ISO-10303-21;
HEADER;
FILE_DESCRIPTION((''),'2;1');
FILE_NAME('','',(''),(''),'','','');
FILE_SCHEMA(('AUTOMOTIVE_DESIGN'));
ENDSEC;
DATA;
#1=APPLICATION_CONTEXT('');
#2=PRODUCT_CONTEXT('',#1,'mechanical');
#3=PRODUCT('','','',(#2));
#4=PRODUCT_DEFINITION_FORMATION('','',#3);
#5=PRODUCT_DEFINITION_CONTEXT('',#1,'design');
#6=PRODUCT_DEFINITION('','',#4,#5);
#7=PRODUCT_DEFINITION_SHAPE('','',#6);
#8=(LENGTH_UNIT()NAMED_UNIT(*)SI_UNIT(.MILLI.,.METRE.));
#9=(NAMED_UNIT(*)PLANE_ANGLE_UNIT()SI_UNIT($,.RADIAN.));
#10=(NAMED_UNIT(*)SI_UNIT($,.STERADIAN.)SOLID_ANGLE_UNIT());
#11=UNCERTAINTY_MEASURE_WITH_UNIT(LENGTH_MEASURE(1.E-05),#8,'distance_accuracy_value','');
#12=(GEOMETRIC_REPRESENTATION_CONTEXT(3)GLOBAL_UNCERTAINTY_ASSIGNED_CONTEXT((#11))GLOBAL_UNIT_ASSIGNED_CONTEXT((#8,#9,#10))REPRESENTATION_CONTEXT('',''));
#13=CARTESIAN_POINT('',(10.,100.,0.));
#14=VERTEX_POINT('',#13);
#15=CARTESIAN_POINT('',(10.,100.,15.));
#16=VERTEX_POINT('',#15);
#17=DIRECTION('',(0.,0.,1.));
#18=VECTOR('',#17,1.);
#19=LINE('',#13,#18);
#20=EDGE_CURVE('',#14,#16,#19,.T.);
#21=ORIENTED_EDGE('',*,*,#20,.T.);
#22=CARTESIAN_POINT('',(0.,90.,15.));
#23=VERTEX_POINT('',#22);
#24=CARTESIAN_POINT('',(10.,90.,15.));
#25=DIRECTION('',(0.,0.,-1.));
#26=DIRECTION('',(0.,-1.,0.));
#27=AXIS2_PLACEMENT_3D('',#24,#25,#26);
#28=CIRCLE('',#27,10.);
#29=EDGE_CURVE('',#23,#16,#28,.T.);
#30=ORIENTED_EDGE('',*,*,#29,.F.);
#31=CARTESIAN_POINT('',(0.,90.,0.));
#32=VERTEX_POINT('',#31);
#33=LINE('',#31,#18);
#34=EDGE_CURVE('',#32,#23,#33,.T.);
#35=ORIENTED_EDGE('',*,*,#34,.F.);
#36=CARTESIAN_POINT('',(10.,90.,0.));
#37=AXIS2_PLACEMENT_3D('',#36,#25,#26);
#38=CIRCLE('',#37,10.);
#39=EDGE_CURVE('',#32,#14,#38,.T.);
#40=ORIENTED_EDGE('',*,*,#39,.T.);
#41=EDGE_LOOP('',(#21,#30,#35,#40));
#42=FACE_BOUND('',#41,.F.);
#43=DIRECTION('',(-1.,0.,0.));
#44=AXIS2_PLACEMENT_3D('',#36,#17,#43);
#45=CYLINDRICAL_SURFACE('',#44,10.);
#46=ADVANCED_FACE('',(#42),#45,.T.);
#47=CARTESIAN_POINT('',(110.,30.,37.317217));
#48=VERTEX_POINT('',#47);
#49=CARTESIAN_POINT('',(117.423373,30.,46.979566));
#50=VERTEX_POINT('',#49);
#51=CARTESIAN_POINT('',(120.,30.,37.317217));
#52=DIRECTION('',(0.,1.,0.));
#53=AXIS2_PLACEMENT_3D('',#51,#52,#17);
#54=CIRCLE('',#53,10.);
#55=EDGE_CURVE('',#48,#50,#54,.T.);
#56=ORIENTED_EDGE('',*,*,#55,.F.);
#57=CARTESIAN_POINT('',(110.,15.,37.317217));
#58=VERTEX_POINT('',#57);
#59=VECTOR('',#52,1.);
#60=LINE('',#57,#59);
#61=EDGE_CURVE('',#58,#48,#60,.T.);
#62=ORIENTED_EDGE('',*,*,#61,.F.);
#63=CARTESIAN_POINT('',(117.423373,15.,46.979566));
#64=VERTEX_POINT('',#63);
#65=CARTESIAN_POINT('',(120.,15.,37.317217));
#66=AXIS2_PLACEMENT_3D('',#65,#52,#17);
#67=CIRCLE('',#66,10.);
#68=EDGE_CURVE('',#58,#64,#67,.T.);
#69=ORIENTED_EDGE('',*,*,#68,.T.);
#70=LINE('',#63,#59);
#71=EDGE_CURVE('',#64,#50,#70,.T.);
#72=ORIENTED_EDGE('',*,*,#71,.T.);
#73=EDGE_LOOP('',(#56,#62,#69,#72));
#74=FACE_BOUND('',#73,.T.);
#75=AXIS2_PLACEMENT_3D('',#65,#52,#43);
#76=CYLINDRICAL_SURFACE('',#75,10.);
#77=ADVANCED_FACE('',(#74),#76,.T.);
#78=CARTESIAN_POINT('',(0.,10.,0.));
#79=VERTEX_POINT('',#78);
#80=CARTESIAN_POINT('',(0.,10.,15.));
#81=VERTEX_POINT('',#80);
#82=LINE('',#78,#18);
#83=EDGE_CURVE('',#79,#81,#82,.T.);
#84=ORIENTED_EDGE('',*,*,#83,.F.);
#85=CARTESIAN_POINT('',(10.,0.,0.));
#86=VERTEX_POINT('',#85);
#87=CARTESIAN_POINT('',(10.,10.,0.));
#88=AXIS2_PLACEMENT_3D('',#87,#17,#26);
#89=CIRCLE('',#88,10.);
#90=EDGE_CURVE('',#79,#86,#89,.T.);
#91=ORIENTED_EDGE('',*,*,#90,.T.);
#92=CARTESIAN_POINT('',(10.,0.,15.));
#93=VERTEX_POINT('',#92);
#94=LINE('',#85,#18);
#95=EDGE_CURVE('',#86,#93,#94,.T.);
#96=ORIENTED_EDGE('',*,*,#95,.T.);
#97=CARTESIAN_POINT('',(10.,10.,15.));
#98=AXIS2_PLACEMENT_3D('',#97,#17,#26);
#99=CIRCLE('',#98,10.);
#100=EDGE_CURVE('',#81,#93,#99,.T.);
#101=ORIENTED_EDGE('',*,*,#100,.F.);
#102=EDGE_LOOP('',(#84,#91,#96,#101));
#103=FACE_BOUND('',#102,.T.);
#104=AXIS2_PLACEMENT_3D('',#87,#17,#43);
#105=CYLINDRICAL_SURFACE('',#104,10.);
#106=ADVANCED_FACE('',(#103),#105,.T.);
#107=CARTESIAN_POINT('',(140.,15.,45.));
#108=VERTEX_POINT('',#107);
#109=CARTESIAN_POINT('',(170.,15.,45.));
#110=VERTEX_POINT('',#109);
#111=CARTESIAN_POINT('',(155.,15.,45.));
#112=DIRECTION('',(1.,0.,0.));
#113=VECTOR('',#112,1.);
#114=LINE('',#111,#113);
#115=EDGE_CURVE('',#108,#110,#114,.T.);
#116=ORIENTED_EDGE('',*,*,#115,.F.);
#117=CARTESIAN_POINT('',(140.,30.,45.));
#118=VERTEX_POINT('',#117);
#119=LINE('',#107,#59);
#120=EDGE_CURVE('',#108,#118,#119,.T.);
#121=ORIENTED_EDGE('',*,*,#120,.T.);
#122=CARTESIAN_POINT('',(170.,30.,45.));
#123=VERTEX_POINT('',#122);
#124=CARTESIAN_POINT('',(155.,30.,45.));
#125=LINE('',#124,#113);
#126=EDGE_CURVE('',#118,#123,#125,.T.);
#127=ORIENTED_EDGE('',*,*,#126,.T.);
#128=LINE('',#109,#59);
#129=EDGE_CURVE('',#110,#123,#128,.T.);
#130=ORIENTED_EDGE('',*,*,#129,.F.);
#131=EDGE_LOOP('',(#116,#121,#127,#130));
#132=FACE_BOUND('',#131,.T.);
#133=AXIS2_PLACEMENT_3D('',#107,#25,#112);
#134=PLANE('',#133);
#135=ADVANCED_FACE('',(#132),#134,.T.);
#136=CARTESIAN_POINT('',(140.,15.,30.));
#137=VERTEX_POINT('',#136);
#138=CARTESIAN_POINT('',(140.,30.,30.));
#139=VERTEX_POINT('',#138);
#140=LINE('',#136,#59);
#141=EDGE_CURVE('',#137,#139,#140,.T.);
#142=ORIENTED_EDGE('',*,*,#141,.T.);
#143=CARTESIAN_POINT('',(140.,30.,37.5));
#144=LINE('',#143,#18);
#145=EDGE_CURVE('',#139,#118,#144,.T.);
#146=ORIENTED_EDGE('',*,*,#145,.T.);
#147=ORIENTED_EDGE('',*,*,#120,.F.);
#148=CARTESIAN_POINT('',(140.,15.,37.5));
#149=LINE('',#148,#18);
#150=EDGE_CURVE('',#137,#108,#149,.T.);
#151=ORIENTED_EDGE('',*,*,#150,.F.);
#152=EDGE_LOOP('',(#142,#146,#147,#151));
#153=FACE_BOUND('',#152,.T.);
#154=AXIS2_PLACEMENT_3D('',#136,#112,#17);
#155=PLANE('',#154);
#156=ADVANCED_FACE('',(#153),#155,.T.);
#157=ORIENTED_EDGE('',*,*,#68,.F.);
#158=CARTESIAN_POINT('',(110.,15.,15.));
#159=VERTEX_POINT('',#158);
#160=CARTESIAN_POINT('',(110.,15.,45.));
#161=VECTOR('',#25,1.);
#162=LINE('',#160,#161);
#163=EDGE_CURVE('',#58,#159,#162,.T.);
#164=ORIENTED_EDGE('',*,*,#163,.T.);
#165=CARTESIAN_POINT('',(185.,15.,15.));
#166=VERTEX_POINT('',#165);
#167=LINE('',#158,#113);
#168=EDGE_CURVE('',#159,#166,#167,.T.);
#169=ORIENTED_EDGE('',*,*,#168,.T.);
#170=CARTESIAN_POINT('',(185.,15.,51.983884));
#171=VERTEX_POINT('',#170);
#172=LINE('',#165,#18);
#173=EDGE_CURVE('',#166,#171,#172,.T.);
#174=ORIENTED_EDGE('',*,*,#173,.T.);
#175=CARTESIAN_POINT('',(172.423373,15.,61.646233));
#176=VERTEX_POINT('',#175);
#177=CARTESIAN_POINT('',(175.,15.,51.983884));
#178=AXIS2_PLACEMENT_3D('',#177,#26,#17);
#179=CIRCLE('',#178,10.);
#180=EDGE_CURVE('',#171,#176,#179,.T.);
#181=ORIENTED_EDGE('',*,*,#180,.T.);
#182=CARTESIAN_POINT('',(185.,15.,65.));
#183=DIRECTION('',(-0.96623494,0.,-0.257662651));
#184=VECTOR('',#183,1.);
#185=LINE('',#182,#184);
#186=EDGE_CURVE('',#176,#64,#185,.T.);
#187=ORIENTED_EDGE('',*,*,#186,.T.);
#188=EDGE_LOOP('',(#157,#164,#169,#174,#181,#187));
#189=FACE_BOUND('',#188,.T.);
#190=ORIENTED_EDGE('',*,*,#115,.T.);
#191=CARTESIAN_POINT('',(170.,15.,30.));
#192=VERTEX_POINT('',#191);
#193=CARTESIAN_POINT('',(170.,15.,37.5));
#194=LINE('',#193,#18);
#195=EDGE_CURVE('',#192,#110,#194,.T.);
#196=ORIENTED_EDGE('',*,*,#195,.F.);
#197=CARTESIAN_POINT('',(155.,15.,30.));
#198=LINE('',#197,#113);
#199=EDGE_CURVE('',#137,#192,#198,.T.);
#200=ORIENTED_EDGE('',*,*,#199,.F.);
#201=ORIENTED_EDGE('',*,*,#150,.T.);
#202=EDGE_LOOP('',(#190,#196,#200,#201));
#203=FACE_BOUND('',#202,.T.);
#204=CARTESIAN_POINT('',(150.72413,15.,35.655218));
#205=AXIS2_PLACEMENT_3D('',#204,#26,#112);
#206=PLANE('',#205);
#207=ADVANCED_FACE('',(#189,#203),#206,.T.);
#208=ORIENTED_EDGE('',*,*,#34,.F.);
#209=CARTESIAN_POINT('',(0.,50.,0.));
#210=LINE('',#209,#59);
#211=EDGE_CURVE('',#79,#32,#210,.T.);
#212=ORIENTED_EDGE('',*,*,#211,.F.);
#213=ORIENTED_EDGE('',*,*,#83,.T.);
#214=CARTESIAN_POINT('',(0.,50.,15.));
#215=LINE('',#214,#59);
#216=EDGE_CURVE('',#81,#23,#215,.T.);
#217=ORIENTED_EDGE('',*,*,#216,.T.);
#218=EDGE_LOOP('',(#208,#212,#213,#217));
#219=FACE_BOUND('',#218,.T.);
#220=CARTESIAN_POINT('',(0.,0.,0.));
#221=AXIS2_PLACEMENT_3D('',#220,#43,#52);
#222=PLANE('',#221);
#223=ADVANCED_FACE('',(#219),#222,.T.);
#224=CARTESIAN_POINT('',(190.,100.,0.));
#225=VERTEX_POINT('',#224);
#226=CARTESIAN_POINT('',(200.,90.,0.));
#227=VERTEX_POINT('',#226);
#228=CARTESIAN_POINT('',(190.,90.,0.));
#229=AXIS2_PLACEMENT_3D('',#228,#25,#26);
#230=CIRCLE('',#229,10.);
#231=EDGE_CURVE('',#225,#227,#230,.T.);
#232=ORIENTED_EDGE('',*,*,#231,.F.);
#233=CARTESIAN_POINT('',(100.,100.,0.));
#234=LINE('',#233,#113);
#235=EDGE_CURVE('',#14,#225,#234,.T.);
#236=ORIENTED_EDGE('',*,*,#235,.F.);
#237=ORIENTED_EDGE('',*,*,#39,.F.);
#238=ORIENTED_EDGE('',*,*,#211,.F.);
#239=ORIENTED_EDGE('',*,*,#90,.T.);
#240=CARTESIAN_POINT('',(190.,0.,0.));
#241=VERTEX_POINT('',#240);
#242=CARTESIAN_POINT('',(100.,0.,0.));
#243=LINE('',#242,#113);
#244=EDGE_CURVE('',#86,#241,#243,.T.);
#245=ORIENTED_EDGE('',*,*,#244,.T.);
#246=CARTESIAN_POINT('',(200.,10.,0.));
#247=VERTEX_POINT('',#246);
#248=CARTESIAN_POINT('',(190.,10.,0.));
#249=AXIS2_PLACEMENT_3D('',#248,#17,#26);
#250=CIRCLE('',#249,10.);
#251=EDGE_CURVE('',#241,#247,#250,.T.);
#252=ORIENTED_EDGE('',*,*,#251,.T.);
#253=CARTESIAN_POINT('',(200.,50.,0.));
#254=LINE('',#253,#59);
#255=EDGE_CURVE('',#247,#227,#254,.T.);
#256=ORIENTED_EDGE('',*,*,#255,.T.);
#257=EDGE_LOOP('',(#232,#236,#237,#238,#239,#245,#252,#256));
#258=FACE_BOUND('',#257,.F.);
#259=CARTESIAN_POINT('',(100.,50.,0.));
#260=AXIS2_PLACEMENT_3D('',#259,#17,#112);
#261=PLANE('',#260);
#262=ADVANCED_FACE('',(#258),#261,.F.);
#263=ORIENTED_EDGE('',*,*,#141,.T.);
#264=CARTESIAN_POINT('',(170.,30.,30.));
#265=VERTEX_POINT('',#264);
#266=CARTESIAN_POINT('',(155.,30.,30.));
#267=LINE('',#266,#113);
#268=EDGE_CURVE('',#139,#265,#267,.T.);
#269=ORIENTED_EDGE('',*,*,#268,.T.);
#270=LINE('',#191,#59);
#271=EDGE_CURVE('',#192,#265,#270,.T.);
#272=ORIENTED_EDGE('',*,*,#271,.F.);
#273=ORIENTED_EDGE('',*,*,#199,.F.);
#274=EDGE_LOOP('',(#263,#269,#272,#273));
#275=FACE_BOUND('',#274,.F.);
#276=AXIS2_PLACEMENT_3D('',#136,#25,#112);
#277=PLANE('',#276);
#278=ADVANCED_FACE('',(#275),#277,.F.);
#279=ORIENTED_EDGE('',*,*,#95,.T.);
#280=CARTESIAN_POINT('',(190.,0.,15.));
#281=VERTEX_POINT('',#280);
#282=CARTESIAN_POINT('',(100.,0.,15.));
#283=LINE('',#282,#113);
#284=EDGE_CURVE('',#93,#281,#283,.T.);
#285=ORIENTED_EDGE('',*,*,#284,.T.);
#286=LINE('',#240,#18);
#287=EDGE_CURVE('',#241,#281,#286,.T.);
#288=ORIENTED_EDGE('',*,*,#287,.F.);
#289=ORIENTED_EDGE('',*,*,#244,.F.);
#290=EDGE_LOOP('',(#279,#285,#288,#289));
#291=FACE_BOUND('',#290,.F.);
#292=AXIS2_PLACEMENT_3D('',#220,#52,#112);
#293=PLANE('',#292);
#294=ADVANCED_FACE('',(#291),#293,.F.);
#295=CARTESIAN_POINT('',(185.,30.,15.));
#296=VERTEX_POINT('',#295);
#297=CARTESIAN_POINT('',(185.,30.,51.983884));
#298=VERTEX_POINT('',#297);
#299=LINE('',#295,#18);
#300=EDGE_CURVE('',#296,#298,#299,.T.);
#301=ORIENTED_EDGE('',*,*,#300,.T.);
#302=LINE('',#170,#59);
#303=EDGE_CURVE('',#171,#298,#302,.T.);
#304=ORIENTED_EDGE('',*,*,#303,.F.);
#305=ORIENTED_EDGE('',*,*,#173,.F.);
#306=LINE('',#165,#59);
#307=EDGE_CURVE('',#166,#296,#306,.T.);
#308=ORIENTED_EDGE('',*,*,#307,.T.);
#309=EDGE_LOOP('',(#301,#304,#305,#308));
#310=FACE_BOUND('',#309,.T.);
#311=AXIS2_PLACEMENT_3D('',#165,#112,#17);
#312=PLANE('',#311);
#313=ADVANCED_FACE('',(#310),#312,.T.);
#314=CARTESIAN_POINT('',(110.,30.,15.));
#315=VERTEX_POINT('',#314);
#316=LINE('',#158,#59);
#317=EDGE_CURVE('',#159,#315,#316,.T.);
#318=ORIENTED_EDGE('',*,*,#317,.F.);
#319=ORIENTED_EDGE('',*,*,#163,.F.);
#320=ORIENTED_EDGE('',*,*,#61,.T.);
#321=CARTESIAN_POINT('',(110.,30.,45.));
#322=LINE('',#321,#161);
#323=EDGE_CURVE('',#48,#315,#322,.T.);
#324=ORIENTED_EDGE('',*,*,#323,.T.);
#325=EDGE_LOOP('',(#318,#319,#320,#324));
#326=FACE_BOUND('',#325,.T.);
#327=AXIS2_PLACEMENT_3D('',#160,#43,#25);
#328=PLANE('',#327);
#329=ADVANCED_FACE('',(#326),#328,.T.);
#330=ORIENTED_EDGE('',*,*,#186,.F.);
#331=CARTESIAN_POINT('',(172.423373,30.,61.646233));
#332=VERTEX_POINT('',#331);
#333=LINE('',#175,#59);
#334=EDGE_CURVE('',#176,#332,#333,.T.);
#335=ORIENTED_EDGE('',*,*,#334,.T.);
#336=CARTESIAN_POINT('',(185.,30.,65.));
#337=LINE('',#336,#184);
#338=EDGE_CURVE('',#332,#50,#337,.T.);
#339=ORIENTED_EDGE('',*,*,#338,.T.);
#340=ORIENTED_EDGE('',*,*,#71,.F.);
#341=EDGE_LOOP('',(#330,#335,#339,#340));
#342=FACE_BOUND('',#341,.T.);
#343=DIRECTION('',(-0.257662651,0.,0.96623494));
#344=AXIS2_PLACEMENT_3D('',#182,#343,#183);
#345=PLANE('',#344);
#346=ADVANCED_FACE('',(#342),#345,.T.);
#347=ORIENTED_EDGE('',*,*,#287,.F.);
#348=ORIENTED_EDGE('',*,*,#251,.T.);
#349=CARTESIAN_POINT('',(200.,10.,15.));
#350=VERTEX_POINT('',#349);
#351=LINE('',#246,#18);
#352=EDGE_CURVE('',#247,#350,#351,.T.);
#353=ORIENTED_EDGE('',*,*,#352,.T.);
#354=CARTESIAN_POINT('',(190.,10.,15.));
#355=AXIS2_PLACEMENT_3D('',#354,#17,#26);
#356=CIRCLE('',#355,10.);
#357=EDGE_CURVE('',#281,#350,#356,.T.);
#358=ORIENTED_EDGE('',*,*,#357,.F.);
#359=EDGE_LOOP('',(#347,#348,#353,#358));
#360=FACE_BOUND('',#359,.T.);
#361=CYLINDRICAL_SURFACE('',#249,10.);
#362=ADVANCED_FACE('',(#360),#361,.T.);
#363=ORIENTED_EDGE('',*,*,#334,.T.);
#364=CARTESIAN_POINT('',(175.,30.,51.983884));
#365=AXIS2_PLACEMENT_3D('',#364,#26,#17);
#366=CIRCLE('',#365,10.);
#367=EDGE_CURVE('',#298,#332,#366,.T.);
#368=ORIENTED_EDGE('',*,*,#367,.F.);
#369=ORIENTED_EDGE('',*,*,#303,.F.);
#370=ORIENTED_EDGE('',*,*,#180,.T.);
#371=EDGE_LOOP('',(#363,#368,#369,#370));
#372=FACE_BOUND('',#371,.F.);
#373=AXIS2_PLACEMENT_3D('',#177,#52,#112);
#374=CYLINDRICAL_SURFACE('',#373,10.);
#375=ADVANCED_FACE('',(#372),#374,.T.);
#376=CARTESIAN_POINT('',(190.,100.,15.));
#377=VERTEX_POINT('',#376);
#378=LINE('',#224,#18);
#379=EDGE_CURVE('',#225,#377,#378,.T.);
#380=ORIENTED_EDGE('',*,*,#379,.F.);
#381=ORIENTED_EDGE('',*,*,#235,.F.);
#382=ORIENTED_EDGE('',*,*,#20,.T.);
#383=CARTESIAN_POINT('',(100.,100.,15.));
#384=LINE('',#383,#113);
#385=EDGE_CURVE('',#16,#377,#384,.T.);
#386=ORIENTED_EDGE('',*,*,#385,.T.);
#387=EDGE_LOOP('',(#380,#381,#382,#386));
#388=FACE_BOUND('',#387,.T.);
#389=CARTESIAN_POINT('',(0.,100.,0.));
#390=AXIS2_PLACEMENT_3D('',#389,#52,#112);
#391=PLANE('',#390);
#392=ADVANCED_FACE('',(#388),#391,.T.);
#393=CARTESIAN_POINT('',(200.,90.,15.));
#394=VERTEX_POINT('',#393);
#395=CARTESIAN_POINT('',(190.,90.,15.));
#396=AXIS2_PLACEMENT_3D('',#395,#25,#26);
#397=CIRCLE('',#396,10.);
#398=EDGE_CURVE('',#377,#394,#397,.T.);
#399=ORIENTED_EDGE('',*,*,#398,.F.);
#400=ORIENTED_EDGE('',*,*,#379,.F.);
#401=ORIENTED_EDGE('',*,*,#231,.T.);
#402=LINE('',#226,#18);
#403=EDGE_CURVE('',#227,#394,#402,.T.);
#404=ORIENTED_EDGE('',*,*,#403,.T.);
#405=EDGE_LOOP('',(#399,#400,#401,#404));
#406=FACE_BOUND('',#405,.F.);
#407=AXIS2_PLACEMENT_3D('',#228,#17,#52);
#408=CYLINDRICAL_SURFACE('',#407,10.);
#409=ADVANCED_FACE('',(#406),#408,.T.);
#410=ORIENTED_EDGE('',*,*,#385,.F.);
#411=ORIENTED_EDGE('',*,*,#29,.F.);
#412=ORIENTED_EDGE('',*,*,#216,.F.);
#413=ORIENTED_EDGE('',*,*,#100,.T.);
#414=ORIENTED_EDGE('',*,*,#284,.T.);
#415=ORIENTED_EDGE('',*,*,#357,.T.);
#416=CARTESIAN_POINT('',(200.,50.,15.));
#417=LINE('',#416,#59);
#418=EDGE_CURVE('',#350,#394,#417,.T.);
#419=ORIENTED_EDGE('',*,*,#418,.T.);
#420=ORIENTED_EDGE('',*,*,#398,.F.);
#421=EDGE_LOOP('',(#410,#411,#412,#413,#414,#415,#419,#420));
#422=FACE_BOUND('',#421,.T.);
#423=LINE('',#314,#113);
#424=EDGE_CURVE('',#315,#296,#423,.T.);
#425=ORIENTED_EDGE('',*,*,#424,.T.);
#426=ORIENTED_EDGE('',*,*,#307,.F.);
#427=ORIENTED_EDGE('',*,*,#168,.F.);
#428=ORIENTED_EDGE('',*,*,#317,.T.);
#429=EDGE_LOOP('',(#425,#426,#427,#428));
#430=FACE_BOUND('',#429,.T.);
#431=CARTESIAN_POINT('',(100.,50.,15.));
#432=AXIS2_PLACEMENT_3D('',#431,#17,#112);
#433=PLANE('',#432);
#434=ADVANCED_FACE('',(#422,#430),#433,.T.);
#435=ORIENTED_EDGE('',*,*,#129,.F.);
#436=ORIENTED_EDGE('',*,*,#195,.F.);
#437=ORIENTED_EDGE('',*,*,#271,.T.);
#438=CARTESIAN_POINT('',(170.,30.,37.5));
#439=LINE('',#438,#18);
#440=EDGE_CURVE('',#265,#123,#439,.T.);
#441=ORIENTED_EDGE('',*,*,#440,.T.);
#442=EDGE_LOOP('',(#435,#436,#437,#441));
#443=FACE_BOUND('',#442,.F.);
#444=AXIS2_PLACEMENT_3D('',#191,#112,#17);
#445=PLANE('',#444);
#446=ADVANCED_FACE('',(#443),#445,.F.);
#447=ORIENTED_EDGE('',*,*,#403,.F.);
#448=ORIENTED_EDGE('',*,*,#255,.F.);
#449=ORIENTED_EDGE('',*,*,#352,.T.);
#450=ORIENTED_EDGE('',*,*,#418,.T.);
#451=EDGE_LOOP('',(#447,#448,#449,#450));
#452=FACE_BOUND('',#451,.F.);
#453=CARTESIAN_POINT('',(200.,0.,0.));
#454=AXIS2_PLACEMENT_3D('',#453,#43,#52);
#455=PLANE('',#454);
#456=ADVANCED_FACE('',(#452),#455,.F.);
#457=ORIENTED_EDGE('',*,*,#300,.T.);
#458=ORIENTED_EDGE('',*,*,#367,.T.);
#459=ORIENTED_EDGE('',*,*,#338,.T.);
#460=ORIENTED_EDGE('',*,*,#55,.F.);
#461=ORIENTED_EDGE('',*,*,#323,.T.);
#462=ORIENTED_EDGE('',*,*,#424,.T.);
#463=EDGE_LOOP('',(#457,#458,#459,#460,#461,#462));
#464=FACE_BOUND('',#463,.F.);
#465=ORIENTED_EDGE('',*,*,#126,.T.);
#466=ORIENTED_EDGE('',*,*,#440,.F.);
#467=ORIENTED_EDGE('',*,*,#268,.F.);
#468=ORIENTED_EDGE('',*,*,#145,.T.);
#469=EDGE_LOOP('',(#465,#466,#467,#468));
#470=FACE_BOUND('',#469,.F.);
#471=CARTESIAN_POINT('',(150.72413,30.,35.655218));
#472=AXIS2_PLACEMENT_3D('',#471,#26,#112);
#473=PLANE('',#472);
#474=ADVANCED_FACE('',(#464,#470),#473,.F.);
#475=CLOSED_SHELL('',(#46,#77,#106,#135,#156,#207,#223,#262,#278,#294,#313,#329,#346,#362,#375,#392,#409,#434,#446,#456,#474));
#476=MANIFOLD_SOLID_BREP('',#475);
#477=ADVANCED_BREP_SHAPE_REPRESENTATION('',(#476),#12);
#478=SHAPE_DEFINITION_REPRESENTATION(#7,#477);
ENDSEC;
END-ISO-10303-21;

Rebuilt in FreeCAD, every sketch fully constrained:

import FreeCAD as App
import Part
import Sketcher

V = App.Vector


def edges_at(feature, points):
    """Names of the edges that pass closest to the given points."""
    edges = feature.Shape.Edges
    near = lambda p: min(range(len(edges)), key=lambda i: edges[i].distToShape(Part.Vertex(*p))[0])
    return sorted({f"Edge{near(p) + 1}" for p in points})

doc = App.newDocument("Part")
body = doc.addObject("PartDesign::Body", "Body")

# Sketch on XY plane
sketch1 = body.newObject("Sketcher::SketchObject", "Sketch")
sketch1.AttachmentSupport = (doc.getObject("XY_Plane"), [""])
sketch1.MapMode = "FlatFace"
sketch1.addGeometry([
    Part.LineSegment(V(0, 100, 0), V(0, 0, 0)),
    Part.LineSegment(V(0, 0, 0), V(200, 0, 0)),
    Part.LineSegment(V(200, 0, 0), V(200, 100, 0)),
    Part.LineSegment(V(200, 100, 0), V(0, 100, 0)),
], False)
sketch1.addConstraint([
    Sketcher.Constraint("Coincident", 0, 2, 1, 1),
    Sketcher.Constraint("Coincident", 1, 2, 2, 1),
    Sketcher.Constraint("Coincident", 2, 2, 3, 1),
    Sketcher.Constraint("Coincident", 3, 2, 0, 1),
    Sketcher.Constraint("Vertical", 0),
    Sketcher.Constraint("Horizontal", 1),
    Sketcher.Constraint("Vertical", 2),
    Sketcher.Constraint("Horizontal", 3),
    Sketcher.Constraint("Coincident", 0, 2, -1, 1),
    Sketcher.Constraint("DistanceX", 1, 1, 1, 2, 200.0),
    Sketcher.Constraint("DistanceY", 0, 2, 0, 1, 100.0),
])
pad1 = body.newObject("PartDesign::Pad", "Pad")
pad1.Profile = sketch1
pad1.Length = 15

# Sketch on XZ plane
sketch2 = body.newObject("Sketcher::SketchObject", "Sketch001")
sketch2.AttachmentSupport = (doc.getObject("XZ_Plane"), [""])
sketch2.MapMode = "FlatFace"
sketch2.AttachmentOffset = App.Placement(V(0, 0, -15), App.Rotation())
sketch2.addGeometry([
    Part.LineSegment(V(110, 15, 0), V(185, 15, 0)),  # 0
    Part.LineSegment(V(185, 15, 0), V(185, 65, 0)),  # 1
    Part.LineSegment(V(185, 65, 0), V(110, 45, 0)),  # 2
    Part.LineSegment(V(110, 45, 0), V(110, 15, 0)),  # 3
    Part.LineSegment(V(170, 30, 0), V(140, 30, 0)),  # 4
    Part.LineSegment(V(140, 30, 0), V(140, 45, 0)),  # 5
    Part.LineSegment(V(140, 45, 0), V(170, 45, 0)),  # 6
    Part.LineSegment(V(170, 45, 0), V(170, 30, 0)),  # 7
], False)
sketch2.addConstraint([
    Sketcher.Constraint("Coincident", 0, 2, 1, 1),
    Sketcher.Constraint("Coincident", 1, 2, 2, 1),
    Sketcher.Constraint("Coincident", 2, 2, 3, 1),
    Sketcher.Constraint("Coincident", 3, 2, 0, 1),
    Sketcher.Constraint("Coincident", 4, 2, 5, 1),
    Sketcher.Constraint("Coincident", 5, 2, 6, 1),
    Sketcher.Constraint("Coincident", 6, 2, 7, 1),
    Sketcher.Constraint("Coincident", 7, 2, 4, 1),
    Sketcher.Constraint("Horizontal", 0),
    Sketcher.Constraint("Vertical", 1),
    Sketcher.Constraint("Vertical", 3),
    Sketcher.Constraint("Horizontal", 4),
    Sketcher.Constraint("Vertical", 5),
    Sketcher.Constraint("Horizontal", 6),
    Sketcher.Constraint("Vertical", 7),
    Sketcher.Constraint("Horizontal", 2, 2, 5, 2),
    Sketcher.Constraint("Equal", 6, 3),
    Sketcher.Constraint("DistanceX", 0, 1, 0, 2, 75.0),
    Sketcher.Constraint("DistanceX", 4, 2, 4, 1, 30.0),
    Sketcher.Constraint("DistanceY", 1, 1, 1, 2, 50.0),
    Sketcher.Constraint("DistanceY", 5, 1, 5, 2, 15.0),
    Sketcher.Constraint("DistanceX", -1, 1, 0, 2, 185.0),
    Sketcher.Constraint("DistanceY", -1, 1, 0, 2, 15.0),
    Sketcher.Constraint("DistanceX", -1, 1, 4, 2, 140.0),
])
pad2 = body.newObject("PartDesign::Pad", "Pad001")
pad2.Profile = sketch2
pad2.Length = 15
pad2.Reversed = True
doc.recompute()

fillet = body.newObject("PartDesign::Fillet", "Fillet")
fillet.Base = (pad2, edges_at(pad2, [
    (0, 0, 7.5),
    (0, 100, 7.5),
    (200, 0, 7.5),
    (110, 22.5, 45),
    (185, 22.5, 65),
    (200, 100, 7.5),
]))
fillet.Radius = 10

doc.recompute()
